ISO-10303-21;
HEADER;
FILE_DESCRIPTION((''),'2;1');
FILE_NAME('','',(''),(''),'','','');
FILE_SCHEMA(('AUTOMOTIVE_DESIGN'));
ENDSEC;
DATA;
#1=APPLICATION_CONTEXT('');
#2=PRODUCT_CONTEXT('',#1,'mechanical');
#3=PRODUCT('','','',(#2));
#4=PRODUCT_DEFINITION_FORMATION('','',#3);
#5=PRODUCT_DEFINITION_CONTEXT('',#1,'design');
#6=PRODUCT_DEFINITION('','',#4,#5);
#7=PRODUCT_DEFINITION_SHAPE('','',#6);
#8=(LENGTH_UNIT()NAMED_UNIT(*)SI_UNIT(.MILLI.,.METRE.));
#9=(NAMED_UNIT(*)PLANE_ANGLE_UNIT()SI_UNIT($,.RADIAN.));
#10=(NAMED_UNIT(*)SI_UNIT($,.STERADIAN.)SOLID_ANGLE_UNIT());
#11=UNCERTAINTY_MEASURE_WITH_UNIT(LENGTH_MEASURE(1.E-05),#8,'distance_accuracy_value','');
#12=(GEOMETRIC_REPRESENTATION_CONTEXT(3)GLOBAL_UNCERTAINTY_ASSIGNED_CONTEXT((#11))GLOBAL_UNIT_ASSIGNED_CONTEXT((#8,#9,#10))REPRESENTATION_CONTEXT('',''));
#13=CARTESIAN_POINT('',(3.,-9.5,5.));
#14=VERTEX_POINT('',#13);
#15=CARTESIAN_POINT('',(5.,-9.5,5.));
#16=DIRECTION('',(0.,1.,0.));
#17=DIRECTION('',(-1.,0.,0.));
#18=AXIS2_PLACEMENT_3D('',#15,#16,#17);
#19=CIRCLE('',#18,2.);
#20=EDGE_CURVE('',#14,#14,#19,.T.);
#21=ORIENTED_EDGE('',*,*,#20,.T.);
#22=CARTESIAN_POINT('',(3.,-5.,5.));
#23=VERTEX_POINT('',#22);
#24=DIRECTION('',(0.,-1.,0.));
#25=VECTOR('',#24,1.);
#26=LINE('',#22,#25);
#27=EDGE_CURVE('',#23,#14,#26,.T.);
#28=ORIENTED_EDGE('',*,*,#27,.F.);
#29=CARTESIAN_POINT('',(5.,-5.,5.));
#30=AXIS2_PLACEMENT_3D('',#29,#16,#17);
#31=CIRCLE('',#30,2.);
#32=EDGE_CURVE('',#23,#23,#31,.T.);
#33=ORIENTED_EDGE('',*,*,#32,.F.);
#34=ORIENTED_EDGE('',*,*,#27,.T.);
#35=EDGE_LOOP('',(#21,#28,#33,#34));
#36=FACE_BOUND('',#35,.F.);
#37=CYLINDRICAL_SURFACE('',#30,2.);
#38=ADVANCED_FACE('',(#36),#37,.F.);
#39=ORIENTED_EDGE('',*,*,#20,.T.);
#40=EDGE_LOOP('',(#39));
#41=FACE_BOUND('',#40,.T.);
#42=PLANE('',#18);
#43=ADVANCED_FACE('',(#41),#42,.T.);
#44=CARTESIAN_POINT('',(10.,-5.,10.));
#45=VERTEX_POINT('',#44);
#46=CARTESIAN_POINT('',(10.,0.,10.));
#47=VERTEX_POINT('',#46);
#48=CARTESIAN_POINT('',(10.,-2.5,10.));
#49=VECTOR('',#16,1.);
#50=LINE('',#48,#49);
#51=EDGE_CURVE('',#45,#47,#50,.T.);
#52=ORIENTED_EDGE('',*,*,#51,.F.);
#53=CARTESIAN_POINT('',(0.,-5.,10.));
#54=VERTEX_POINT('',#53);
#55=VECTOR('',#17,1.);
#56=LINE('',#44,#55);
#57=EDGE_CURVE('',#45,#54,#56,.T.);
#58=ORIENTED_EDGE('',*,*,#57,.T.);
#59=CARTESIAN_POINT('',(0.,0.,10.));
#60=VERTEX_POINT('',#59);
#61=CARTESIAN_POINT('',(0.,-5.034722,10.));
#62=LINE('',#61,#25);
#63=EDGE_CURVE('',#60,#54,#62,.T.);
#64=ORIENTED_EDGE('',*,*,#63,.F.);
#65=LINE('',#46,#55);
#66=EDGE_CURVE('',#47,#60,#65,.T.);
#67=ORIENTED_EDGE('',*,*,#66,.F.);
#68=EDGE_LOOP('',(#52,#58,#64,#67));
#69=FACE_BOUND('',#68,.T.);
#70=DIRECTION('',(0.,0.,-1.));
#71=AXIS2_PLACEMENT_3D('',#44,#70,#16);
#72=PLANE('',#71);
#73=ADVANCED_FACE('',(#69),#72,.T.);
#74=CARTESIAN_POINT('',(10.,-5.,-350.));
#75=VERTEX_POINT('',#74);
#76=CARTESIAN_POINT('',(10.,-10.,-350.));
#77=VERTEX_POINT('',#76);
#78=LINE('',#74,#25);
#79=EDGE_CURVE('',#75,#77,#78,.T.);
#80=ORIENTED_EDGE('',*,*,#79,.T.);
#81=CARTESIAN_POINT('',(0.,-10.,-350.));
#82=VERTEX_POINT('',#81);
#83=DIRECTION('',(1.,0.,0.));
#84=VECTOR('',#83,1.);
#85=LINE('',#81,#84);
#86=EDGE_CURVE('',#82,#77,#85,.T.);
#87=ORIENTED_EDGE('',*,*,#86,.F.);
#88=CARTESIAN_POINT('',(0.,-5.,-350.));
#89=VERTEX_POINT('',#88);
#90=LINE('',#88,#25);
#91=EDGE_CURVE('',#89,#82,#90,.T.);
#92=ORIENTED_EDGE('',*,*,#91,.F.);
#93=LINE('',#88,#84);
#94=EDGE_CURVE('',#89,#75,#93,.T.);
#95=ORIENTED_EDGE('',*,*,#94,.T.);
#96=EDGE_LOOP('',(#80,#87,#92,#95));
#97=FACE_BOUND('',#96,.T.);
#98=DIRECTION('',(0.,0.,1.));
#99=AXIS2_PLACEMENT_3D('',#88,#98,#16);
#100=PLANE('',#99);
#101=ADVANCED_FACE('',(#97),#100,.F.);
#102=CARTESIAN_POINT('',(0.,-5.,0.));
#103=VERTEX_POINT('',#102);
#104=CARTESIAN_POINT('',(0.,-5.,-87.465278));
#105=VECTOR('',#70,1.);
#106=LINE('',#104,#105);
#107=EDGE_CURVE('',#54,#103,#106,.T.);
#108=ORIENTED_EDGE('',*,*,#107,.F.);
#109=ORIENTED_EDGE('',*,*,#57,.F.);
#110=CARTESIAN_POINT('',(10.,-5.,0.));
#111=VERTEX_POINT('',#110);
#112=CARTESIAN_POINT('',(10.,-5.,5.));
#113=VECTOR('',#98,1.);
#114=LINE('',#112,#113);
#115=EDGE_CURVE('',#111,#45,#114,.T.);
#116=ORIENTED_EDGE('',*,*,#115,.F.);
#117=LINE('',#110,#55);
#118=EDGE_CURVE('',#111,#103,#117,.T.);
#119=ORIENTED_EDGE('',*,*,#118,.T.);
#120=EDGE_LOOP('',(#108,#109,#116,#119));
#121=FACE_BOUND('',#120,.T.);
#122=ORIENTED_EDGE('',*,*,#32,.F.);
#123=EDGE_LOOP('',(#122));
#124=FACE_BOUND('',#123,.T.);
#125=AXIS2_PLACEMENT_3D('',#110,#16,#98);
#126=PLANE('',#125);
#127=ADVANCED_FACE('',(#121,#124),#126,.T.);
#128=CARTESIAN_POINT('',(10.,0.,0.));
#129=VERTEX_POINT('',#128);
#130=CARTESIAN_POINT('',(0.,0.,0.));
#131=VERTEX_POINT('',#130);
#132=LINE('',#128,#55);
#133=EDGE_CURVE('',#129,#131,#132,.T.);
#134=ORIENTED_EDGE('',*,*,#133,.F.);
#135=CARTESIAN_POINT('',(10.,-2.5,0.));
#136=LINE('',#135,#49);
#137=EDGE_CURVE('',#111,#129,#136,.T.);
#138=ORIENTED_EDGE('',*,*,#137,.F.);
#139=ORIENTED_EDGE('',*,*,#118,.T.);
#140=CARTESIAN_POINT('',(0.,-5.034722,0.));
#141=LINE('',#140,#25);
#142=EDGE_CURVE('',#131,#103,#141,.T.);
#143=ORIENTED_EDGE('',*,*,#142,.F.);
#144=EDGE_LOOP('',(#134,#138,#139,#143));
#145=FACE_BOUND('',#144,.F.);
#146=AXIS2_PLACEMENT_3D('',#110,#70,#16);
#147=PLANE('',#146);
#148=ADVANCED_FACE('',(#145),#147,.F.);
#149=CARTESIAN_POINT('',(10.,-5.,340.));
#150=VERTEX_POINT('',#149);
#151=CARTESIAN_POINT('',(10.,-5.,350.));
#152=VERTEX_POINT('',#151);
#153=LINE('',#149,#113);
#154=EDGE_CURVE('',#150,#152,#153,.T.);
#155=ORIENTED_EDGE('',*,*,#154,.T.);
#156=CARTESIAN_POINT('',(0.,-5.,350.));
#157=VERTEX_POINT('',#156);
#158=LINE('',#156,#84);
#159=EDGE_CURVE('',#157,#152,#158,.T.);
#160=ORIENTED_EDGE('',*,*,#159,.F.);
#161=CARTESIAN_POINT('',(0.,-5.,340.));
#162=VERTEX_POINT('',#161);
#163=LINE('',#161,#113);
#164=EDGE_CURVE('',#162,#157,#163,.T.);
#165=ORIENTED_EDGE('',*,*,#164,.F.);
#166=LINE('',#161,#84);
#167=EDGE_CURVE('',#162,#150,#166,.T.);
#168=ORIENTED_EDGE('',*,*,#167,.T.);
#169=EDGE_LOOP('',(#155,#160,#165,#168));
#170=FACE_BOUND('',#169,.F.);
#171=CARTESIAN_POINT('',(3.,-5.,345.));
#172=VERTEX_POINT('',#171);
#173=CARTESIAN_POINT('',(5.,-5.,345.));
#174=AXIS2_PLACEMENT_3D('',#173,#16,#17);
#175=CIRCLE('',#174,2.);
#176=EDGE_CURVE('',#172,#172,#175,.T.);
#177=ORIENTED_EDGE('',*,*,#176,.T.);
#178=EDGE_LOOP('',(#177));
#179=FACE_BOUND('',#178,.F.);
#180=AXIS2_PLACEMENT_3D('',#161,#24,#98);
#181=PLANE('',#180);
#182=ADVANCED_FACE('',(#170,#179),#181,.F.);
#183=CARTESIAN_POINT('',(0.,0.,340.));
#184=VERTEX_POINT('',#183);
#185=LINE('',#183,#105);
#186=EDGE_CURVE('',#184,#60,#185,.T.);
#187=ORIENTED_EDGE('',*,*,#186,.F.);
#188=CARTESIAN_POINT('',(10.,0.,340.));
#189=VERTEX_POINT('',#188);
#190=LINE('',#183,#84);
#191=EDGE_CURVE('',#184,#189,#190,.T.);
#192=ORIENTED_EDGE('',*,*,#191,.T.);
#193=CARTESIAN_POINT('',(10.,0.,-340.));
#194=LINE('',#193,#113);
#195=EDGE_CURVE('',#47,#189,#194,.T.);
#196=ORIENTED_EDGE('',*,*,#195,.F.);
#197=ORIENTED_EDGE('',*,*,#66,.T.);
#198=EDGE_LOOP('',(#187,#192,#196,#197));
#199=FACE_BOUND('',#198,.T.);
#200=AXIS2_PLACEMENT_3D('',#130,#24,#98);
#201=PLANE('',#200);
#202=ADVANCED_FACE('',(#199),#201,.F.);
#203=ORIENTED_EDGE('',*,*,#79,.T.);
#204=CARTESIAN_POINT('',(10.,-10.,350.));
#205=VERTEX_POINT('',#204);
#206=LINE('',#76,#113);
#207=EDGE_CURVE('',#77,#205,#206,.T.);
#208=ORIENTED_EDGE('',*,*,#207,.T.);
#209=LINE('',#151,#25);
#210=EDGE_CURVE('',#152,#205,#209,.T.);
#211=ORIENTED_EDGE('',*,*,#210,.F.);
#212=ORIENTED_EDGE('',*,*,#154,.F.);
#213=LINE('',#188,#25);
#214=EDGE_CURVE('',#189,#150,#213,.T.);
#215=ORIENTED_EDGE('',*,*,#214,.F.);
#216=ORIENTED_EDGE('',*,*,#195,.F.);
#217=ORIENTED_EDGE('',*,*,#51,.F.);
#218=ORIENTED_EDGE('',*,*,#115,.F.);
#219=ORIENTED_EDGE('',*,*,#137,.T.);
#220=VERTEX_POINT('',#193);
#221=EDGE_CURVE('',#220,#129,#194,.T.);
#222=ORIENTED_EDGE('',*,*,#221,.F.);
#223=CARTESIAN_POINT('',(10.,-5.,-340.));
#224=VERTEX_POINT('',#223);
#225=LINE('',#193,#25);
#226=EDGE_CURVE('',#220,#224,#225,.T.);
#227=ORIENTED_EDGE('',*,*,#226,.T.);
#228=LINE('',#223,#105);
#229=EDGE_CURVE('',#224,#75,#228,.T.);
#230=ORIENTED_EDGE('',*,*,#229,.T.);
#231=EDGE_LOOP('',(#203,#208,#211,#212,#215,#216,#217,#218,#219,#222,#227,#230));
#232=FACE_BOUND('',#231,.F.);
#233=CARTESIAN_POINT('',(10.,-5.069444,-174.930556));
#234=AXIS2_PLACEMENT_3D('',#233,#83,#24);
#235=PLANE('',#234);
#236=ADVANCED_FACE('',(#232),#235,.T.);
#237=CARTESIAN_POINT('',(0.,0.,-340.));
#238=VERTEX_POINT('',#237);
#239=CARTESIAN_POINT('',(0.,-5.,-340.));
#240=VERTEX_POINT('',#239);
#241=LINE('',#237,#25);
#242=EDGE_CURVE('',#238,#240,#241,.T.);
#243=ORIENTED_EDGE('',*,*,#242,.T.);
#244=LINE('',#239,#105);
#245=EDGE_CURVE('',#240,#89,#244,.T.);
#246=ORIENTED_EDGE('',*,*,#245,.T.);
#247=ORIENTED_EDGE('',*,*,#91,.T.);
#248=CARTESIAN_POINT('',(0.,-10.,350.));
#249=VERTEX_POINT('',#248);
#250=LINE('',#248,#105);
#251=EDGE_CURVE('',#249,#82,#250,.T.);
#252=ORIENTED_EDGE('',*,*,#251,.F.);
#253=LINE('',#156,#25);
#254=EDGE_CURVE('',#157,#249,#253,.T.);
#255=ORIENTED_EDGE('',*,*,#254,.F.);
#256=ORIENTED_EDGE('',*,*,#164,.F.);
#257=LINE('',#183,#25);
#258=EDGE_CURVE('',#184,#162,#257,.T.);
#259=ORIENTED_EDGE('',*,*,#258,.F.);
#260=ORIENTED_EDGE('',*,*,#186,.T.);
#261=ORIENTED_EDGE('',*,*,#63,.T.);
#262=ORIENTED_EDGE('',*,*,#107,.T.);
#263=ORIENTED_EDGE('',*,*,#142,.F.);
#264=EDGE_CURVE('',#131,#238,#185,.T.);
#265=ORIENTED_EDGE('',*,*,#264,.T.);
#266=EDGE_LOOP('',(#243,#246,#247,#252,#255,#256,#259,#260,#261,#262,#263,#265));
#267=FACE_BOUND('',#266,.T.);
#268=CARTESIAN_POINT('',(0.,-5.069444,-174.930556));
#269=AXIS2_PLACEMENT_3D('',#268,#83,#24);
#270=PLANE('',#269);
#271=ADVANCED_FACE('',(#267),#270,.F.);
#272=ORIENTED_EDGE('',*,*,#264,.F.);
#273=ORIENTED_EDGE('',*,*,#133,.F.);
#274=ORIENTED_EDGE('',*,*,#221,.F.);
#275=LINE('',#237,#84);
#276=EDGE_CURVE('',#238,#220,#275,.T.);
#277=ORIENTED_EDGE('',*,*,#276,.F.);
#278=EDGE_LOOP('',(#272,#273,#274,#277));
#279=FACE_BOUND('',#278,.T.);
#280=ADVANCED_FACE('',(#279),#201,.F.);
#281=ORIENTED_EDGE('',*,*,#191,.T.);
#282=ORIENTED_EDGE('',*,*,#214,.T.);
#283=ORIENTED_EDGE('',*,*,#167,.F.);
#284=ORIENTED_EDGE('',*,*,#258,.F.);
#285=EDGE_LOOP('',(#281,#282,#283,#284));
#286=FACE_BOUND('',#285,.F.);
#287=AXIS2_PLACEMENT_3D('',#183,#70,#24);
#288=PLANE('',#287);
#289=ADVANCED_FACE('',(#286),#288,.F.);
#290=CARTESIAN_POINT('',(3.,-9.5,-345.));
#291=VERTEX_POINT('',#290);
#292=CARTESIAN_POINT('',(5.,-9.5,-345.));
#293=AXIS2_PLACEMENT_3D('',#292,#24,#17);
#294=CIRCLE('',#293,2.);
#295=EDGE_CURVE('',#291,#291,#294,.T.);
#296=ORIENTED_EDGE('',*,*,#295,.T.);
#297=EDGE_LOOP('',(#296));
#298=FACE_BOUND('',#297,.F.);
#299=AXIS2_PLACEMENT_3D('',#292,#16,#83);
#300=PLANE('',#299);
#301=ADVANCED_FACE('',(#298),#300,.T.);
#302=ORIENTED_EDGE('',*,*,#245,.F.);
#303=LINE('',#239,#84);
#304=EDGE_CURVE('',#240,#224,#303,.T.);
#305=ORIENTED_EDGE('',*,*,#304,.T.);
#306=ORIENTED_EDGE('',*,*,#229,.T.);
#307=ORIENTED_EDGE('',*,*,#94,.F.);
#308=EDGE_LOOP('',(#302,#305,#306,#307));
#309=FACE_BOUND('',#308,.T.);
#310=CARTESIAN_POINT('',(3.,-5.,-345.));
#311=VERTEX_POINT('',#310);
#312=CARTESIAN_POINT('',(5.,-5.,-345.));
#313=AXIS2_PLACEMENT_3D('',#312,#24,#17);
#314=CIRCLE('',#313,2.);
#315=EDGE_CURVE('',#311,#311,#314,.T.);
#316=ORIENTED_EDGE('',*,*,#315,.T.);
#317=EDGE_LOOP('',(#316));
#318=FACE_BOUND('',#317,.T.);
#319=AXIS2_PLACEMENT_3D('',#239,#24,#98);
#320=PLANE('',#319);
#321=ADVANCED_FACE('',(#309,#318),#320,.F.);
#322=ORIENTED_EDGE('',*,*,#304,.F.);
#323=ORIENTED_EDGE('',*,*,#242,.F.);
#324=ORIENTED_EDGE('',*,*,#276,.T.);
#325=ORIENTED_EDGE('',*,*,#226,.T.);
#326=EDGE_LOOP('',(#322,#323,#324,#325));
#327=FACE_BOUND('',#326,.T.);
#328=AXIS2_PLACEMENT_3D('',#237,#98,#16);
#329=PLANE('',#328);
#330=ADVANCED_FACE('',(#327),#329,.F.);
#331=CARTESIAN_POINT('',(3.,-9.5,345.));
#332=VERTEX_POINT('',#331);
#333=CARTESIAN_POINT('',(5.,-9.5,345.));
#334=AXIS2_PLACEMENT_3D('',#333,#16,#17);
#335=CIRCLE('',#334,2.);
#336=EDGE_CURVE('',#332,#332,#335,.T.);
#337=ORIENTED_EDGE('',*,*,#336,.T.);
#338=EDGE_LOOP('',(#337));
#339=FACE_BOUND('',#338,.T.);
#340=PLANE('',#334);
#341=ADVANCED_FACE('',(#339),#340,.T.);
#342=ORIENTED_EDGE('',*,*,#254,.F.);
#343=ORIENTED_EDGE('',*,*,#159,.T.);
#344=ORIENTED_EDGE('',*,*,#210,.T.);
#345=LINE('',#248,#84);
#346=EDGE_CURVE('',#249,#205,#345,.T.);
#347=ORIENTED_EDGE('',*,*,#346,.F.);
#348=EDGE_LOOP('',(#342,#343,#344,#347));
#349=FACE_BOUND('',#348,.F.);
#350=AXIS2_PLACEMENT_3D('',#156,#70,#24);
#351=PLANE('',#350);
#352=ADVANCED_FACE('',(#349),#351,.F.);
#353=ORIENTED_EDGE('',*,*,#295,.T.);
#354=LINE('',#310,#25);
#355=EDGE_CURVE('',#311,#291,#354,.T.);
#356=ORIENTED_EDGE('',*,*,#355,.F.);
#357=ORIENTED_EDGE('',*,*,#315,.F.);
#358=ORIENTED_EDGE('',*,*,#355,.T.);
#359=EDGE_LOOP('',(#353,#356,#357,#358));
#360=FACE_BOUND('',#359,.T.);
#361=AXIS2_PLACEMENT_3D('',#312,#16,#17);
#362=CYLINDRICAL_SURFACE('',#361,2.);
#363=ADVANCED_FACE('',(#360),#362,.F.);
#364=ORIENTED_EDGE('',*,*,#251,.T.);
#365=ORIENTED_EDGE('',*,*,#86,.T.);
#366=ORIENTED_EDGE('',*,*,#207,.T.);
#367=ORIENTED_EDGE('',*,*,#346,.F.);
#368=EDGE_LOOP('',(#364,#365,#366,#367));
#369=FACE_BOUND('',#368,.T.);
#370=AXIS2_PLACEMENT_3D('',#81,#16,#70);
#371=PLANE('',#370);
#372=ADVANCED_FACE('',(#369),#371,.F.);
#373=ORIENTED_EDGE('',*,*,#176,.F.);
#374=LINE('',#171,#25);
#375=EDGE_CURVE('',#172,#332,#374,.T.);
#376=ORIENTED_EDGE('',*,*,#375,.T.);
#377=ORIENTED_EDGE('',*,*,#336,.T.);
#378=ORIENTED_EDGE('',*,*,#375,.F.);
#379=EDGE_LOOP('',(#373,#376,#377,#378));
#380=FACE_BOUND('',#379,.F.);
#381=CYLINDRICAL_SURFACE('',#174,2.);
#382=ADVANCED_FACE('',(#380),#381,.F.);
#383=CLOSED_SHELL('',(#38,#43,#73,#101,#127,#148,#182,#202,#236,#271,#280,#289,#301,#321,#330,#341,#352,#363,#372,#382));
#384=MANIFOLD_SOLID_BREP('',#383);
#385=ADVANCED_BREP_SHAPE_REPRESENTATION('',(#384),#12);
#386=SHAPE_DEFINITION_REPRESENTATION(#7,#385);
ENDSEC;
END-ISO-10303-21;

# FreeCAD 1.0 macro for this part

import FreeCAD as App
import Part
import Sketcher

V = App.Vector
Q = App.Units.Quantity


def add_polygon(sketch, points):
    """Adds a closed chain of lines whose ends are joined by coincident constraints."""
    first, n = sketch.GeometryCount, len(points)
    for a, b in zip(points, points[1:] + points[:1]):
        sketch.addGeometry(Part.LineSegment(App.Vector(*a, 0), App.Vector(*b, 0)), False)
    for i in range(n):
        sketch.addConstraint(Sketcher.Constraint("Coincident", first + i, 2, first + (i + 1) % n, 1))

doc = App.newDocument("Part")
body = doc.addObject("PartDesign::Body", "Body")

# Sketch on YZ plane
sketch1 = body.newObject("Sketcher::SketchObject", "Sketch")
sketch1.AttachmentSupport = (doc.getObject("YZ_Plane"), [""])
sketch1.MapMode = "FlatFace"
add_polygon(sketch1, [(-10, 0), (0, 0), (0, 340), (-5, 340), (-5, 350), (-10, 350)])  # lines 0-5
sketch1.addConstraint(Sketcher.Constraint("Horizontal", 0))
sketch1.addConstraint(Sketcher.Constraint("Vertical", 1))
sketch1.addConstraint(Sketcher.Constraint("Horizontal", 2))
sketch1.addConstraint(Sketcher.Constraint("Vertical", 3))
sketch1.addConstraint(Sketcher.Constraint("Horizontal", 4))
sketch1.addConstraint(Sketcher.Constraint("Vertical", 5))
sketch1.addConstraint(Sketcher.Constraint("Coincident", 0, 2, -1, 1))
sketch1.addConstraint(Sketcher.Constraint("Equal", 2, 4))
sketch1.addConstraint(Sketcher.Constraint("Equal", 0, 3))
sketch1.addConstraint(Sketcher.Constraint("DistanceX", 0, 1, 0, 2, Q("10 mm")))
sketch1.addConstraint(Sketcher.Constraint("DistanceY", 1, 1, 1, 2, Q("340 mm")))
pad1 = body.newObject("PartDesign::Pad", "Pad")
pad1.Profile = sketch1
pad1.Length = 10

# Sketch on XZ plane
sketch2 = body.newObject("Sketcher::SketchObject", "Sketch001")
sketch2.AttachmentSupport = (doc.getObject("XZ_Plane"), [""])
sketch2.MapMode = "FlatFace"
sketch2.AttachmentOffset = App.Placement(V(0, 0, 5), App.Rotation())
sketch2.addGeometry(Part.Circle(V(5, 345, 0), V(0, 0, 1), 2), False)
sketch2.addConstraint(Sketcher.Constraint("Diameter", 0, Q("4 mm")))
sketch2.addConstraint(Sketcher.Constraint("DistanceX", -1, 1, 0, 3, Q("5 mm")))
sketch2.addConstraint(Sketcher.Constraint("DistanceY", -1, 1, 0, 3, Q("345 mm")))
pocket1 = body.newObject("PartDesign::Pocket", "Pocket")
pocket1.Profile = sketch2
pocket1.Length = 4.5
pocket1.Reversed = True
body2 = doc.addObject("PartDesign::Body", "Body001")
doc.recompute()

body2.BaseFeature = body
doc.recompute()

mirroring = doc.addObject("Part::Mirroring", "Mirroring")
mirroring.Source = body
mirroring.Base = V(0, 0, 0)
mirroring.Normal = V(0, 0, 1)
body3 = doc.addObject("PartDesign::Body", "Body002")
body3.BaseFeature = mirroring
boolean = body2.newObject("PartDesign::Boolean", "Boolean")
boolean.Type = "Fuse"
boolean.addObjects([body3])
doc.recompute()

# Sketch on YZ plane
sketch3 = body2.newObject("Sketcher::SketchObject", "Sketch002")
sketch3.AttachmentSupport = (doc.getObject("YZ_Plane001"), [""])
sketch3.MapMode = "FlatFace"
sketch3.AttachmentOffset = App.Placement(V(0, 0, 10), App.Rotation())
add_polygon(sketch3, [(-5, 10), (-5, 0), (0, 0), (0, 10)])  # lines 0-3
sketch3.addConstraint(Sketcher.Constraint("Vertical", 0))
sketch3.addConstraint(Sketcher.Constraint("Horizontal", 1))
sketch3.addConstraint(Sketcher.Constraint("Vertical", 2))
sketch3.addConstraint(Sketcher.Constraint("Horizontal", 3))
sketch3.addConstraint(Sketcher.Constraint("Coincident", 1, 2, -1, 1))
sketch3.addConstraint(Sketcher.Constraint("DistanceX", 1, 1, 1, 2, Q("5 mm")))
sketch3.addConstraint(Sketcher.Constraint("DistanceY", 0, 2, 0, 1, Q("10 mm")))
pocket2 = body2.newObject("PartDesign::Pocket", "Pocket001")
pocket2.Profile = sketch3
pocket2.Type = "ThroughAll"

# Sketch on XZ plane
sketch4 = body2.newObject("Sketcher::SketchObject", "Sketch003")
sketch4.AttachmentSupport = (doc.getObject("XZ_Plane001"), [""])
sketch4.MapMode = "FlatFace"
sketch4.AttachmentOffset = App.Placement(V(0, 0, 5), App.Rotation())
sketch4.addGeometry(Part.Circle(V(5, 5, 0), V(0, 0, 1), 2), False)
sketch4.addConstraint(Sketcher.Constraint("Diameter", 0, Q("4 mm")))
sketch4.addConstraint(Sketcher.Constraint("DistanceX", -1, 1, 0, 3, Q("5 mm")))
sketch4.addConstraint(Sketcher.Constraint("DistanceY", -1, 1, 0, 3, Q("5 mm")))
pocket3 = body2.newObject("PartDesign::Pocket", "Pocket002")
pocket3.Profile = sketch4
pocket3.Length = 4.5
pocket3.Reversed = True
mirroring.Visibility = False

doc.recompute()
